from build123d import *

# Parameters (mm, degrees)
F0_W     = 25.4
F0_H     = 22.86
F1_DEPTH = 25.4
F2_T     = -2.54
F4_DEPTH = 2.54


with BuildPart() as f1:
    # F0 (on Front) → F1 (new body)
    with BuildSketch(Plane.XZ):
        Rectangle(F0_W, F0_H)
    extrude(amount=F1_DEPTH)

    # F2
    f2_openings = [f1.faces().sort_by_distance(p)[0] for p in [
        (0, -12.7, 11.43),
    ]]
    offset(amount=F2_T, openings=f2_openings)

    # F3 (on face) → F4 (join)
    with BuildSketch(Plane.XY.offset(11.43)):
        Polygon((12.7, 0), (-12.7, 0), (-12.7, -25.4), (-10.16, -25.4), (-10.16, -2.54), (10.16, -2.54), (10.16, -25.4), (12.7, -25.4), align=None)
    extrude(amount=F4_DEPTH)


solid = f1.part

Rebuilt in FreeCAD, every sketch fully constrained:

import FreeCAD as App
import Part
import Sketcher

V = App.Vector
Q = App.Units.Quantity


def faces_at(feature, points):
    """Names of the faces that lie closest to the given points."""
    faces = feature.Shape.Faces
    near = lambda p: min(range(len(faces)), key=lambda i: faces[i].distToShape(Part.Vertex(*p))[0])
    return sorted({f"Face{near(p) + 1}" for p in points})

doc = App.newDocument("Part")
body = doc.addObject("PartDesign::Body", "Body")

# Sketch on XZ plane
sketch1 = doc.addObject("Sketcher::SketchObject", "Sketch")
body.addObject(sketch1)
sketch1.AttachmentSupport = (doc.XZ_Plane, [""])
sketch1.MapMode = "FlatFace"
sketch1.addGeometry([
    Part.LineSegment(V(-13, 11, 0), V(-13, -11, 0)),
    Part.LineSegment(V(-13, -11, 0), V(13, -11, 0)),
    Part.LineSegment(V(13, -11, 0), V(13, 11, 0)),
    Part.LineSegment(V(13, 11, 0), V(-13, 11, 0)),
], False)
sketch1.addConstraint([
    Sketcher.Constraint("Coincident", 0, 2, 1, 1),
    Sketcher.Constraint("Coincident", 1, 2, 2, 1),
    Sketcher.Constraint("Coincident", 2, 2, 3, 1),
    Sketcher.Constraint("Coincident", 3, 2, 0, 1),
    Sketcher.Constraint("Vertical", 0),
    Sketcher.Constraint("Horizontal", 1),
    Sketcher.Constraint("Vertical", 2),
    Sketcher.Constraint("Horizontal", 3),
    Sketcher.Constraint("Symmetric", 0, 2, 2, 2, -1, 1),
    Sketcher.Constraint("DistanceX", 1, 1, 1, 2, Q("1 in")),
    Sketcher.Constraint("DistanceY", 0, 2, 0, 1, Q("0.9 in")),
])
pad1 = doc.addObject("PartDesign::Pad", "Pad")
body.addObject(pad1)
pad1.Profile = sketch1
pad1.Length = Q("1 in")
doc.recompute()

thickness = doc.addObject("PartDesign::Thickness", "Thickness")
body.addObject(thickness)
thickness.Base = (pad1, faces_at(pad1, [(0, -12.7, 11.43)]))
thickness.Value = Q("0.1 in")
thickness.Reversed = True
thickness.Join = "Arc"

# Sketch on XY plane
sketch2 = doc.addObject("Sketcher::SketchObject", "Sketch001")
body.addObject(sketch2)
sketch2.AttachmentSupport = (doc.XY_Plane, [""])
sketch2.MapMode = "FlatFace"
sketch2.AttachmentOffset = App.Placement(V(0, 0, 0.45 * 25.4), App.Rotation())
sketch2.addGeometry([
    Part.LineSegment(V(12.7, 0, 0), V(-12.7, 0, 0)),  # 0
    Part.LineSegment(V(-12.7, 0, 0), V(-12.7, -25.4, 0)),  # 1
    Part.LineSegment(V(-12.7, -25.4, 0), V(-10.2, -25.4, 0)),  # 2
    Part.LineSegment(V(-10.2, -25.4, 0), V(-10.2, -2.5, 0)),  # 3
    Part.LineSegment(V(-10.2, -2.5, 0), V(10.2, -2.5, 0)),  # 4
    Part.LineSegment(V(10.2, -2.5, 0), V(10.2, -25.4, 0)),  # 5
    Part.LineSegment(V(10.2, -25.4, 0), V(12.7, -25.4, 0)),  # 6
    Part.LineSegment(V(12.7, -25.4, 0), V(12.7, 0, 0)),  # 7
], False)
sketch2.addConstraint([
    Sketcher.Constraint("Coincident", 0, 2, 1, 1),
    Sketcher.Constraint("Coincident", 1, 2, 2, 1),
    Sketcher.Constraint("Coincident", 2, 2, 3, 1),
    Sketcher.Constraint("Coincident", 3, 2, 4, 1),
    Sketcher.Constraint("Coincident", 4, 2, 5, 1),
    Sketcher.Constraint("Coincident", 5, 2, 6, 1),
    Sketcher.Constraint("Coincident", 6, 2, 7, 1),
    Sketcher.Constraint("Coincident", 7, 2, 0, 1),
    Sketcher.Constraint("Horizontal", 0),
    Sketcher.Constraint("Vertical", 1),
    Sketcher.Constraint("Horizontal", 2),
    Sketcher.Constraint("Vertical", 3),
    Sketcher.Constraint("Horizontal", 4),
    Sketcher.Constraint("Vertical", 5),
    Sketcher.Constraint("Horizontal", 6),
    Sketcher.Constraint("Vertical", 7),
    Sketcher.Constraint("Symmetric", 0, 2, 7, 2, -1, 1),
    Sketcher.Constraint("Symmetric", 2, 2, 5, 2, -2),
    Sketcher.Constraint("Equal", 0, 1),
    Sketcher.Constraint("DistanceX", 0, 2, 0, 1, Q("1 in")),
    Sketcher.Constraint("DistanceX", 2, 1, 2, 2, Q("0.1 in")),
    Sketcher.Constraint("DistanceY", 3, 1, 3, 2, Q("0.9 in")),
])
pad2 = doc.addObject("PartDesign::Pad", "Pad001")
body.addObject(pad2)
pad2.Profile = sketch2
pad2.Length = Q("0.1 in")

doc.recompute()
